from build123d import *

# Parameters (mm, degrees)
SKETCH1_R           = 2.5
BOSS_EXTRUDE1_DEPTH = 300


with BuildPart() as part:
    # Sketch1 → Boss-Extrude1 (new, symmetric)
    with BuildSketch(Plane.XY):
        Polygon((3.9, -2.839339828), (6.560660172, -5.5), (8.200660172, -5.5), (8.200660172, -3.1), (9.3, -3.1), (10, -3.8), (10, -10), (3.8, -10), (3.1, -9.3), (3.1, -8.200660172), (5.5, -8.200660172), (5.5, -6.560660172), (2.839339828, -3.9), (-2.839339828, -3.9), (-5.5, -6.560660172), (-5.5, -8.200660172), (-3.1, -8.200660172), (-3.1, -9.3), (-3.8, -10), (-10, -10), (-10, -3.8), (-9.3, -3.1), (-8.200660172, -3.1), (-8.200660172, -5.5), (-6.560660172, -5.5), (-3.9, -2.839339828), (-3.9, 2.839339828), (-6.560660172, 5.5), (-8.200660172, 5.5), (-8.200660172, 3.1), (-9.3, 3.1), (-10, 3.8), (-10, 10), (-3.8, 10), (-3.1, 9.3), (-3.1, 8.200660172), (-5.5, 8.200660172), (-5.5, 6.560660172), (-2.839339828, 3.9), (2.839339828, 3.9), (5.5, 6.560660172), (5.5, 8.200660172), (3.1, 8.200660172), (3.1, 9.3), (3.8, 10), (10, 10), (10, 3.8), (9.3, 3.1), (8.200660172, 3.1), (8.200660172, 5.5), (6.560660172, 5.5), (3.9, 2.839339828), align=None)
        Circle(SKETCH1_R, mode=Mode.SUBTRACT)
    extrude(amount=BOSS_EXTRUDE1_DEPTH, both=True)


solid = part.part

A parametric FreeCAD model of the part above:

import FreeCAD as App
import Part
import Sketcher
from FreeCAD import Vector

doc = App.newDocument("Part")
body = doc.addObject("PartDesign::Body", "Body")

# Sketch on XY plane
sketch1 = body.newObject("Sketcher::SketchObject", "Sketch")
sketch1.AttachmentSupport = (doc.getObject("XY_Plane"), [""])
sketch1.MapMode = "FlatFace"
sketch1.addGeometry(Part.LineSegment(Vector(6.6, -5.5, 0), Vector(3.9, -2.8, 0)), False)
sketch1.addGeometry(Part.LineSegment(Vector(3.9, -2.8, 0), Vector(3.9, 2.8, 0)), False)
sketch1.addGeometry(Part.LineSegment(Vector(3.9, 2.8, 0), Vector(6.6, 5.5, 0)), False)
sketch1.addGeometry(Part.LineSegment(Vector(6.6, 5.5, 0), Vector(8.2, 5.5, 0)), False)
sketch1.addGeometry(Part.LineSegment(Vector(8.2, 5.5, 0), Vector(8.2, 3.1, 0)), False)
sketch1.addGeometry(Part.LineSegment(Vector(8.2, 3.1, 0), Vector(9.3, 3.1, 0)), False)
sketch1.addGeometry(Part.LineSegment(Vector(9.3, 3.1, 0), Vector(10, 3.8, 0)), False)
sketch1.addGeometry(Part.LineSegment(Vector(10, 3.8, 0), Vector(10, 10, 0)), False)
sketch1.addGeometry(Part.LineSegment(Vector(10, 10, 0), Vector(3.8, 10, 0)), False)
sketch1.addGeometry(Part.LineSegment(Vector(3.8, 10, 0), Vector(3.1, 9.3, 0)), False)
sketch1.addGeometry(Part.LineSegment(Vector(3.1, 9.3, 0), Vector(3.1, 8.2, 0)), False)
sketch1.addGeometry(Part.LineSegment(Vector(3.1, 8.2, 0), Vector(5.5, 8.2, 0)), False)
sketch1.addGeometry(Part.LineSegment(Vector(5.5, 8.2, 0), Vector(5.5, 6.6, 0)), False)
sketch1.addGeometry(Part.LineSegment(Vector(5.5, 6.6, 0), Vector(2.8, 3.9, 0)), False)
sketch1.addGeometry(Part.LineSegment(Vector(2.8, 3.9, 0), Vector(-2.8, 3.9, 0)), False)
sketch1.addGeometry(Part.LineSegment(Vector(-2.8, 3.9, 0), Vector(-5.5, 6.6, 0)), False)
sketch1.addGeometry(Part.LineSegment(Vector(-5.5, 6.6, 0), Vector(-5.5, 8.2, 0)), False)
sketch1.addGeometry(Part.LineSegment(Vector(-5.5, 8.2, 0), Vector(-3.1, 8.2, 0)), False)
sketch1.addGeometry(Part.LineSegment(Vector(-3.1, 8.2, 0), Vector(-3.1, 9.3, 0)), False)
sketch1.addGeometry(Part.LineSegment(Vector(-3.1, 9.3, 0), Vector(-3.8, 10, 0)), False)
sketch1.addGeometry(Part.LineSegment(Vector(-3.8, 10, 0), Vector(-10, 10, 0)), False)
sketch1.addGeometry(Part.LineSegment(Vector(-10, 10, 0), Vector(-10, 3.8, 0)), False)
sketch1.addGeometry(Part.LineSegment(Vector(-10, 3.8, 0), Vector(-9.3, 3.1, 0)), False)
sketch1.addGeometry(Part.LineSegment(Vector(-9.3, 3.1, 0), Vector(-8.2, 3.1, 0)), False)
sketch1.addGeometry(Part.LineSegment(Vector(-8.2, 3.1, 0), Vector(-8.2, 5.5, 0)), False)
sketch1.addGeometry(Part.LineSegment(Vector(-8.2, 5.5, 0), Vector(-6.6, 5.5, 0)), False)
sketch1.addGeometry(Part.LineSegment(Vector(-6.6, 5.5, 0), Vector(-3.9, 2.8, 0)), False)
sketch1.addGeometry(Part.LineSegment(Vector(-3.9, 2.8, 0), Vector(-3.9, -2.8, 0)), False)
sketch1.addGeometry(Part.LineSegment(Vector(-3.9, -2.8, 0), Vector(-6.6, -5.5, 0)), False)
sketch1.addGeometry(Part.LineSegment(Vector(-6.6, -5.5, 0), Vector(-8.2, -5.5, 0)), False)
sketch1.addGeometry(Part.LineSegment(Vector(-8.2, -5.5, 0), Vector(-8.2, -3.1, 0)), False)
sketch1.addGeometry(Part.LineSegment(Vector(-8.2, -3.1, 0), Vector(-9.3, -3.1, 0)), False)
sketch1.addGeometry(Part.LineSegment(Vector(-9.3, -3.1, 0), Vector(-10, -3.8, 0)), False)
sketch1.addGeometry(Part.LineSegment(Vector(-10, -3.8, 0), Vector(-10, -10, 0)), False)
sketch1.addGeometry(Part.LineSegment(Vector(-10, -10, 0), Vector(-3.8, -10, 0)), False)
sketch1.addGeometry(Part.LineSegment(Vector(-3.8, -10, 0), Vector(-3.1, -9.3, 0)), False)
sketch1.addGeometry(Part.LineSegment(Vector(-3.1, -9.3, 0), Vector(-3.1, -8.2, 0)), False)
sketch1.addGeometry(Part.LineSegment(Vector(-3.1, -8.2, 0), Vector(-5.5, -8.2, 0)), False)
sketch1.addGeometry(Part.LineSegment(Vector(-5.5, -8.2, 0), Vector(-5.5, -6.6, 0)), False)
sketch1.addGeometry(Part.LineSegment(Vector(-5.5, -6.6, 0), Vector(-2.8, -3.9, 0)), False)
sketch1.addGeometry(Part.LineSegment(Vector(-2.8, -3.9, 0), Vector(2.8, -3.9, 0)), False)
sketch1.addGeometry(Part.LineSegment(Vector(2.8, -3.9, 0), Vector(5.5, -6.6, 0)), False)
sketch1.addGeometry(Part.LineSegment(Vector(5.5, -6.6, 0), Vector(5.5, -8.2, 0)), False)
sketch1.addGeometry(Part.LineSegment(Vector(5.5, -8.2, 0), Vector(3.1, -8.2, 0)), False)
sketch1.addGeometry(Part.LineSegment(Vector(3.1, -8.2, 0), Vector(3.1, -9.3, 0)), False)
sketch1.addGeometry(Part.LineSegment(Vector(3.1, -9.3, 0), Vector(3.8, -10, 0)), False)
sketch1.addGeometry(Part.LineSegment(Vector(3.8, -10, 0), Vector(10, -10, 0)), False)
sketch1.addGeometry(Part.LineSegment(Vector(10, -10, 0), Vector(10, -3.8, 0)), False)
sketch1.addGeometry(Part.LineSegment(Vector(10, -3.8, 0), Vector(9.3, -3.1, 0)), False)
sketch1.addGeometry(Part.LineSegment(Vector(9.3, -3.1, 0), Vector(8.2, -3.1, 0)), False)
sketch1.addGeometry(Part.LineSegment(Vector(8.2, -3.1, 0), Vector(8.2, -5.5, 0)), False)
sketch1.addGeometry(Part.LineSegment(Vector(8.2, -5.5, 0), Vector(6.6, -5.5, 0)), False)
sketch1.addGeometry(Part.Circle(Vector(0, 0, 0), Vector(0, 0, 1), 2.5), False)
sketch1.addConstraint(Sketcher.Constraint("Coincident", 0, 2, 1, 1))
sketch1.addConstraint(Sketcher.Constraint("Coincident", 1, 2, 2, 1))
sketch1.addConstraint(Sketcher.Constraint("Coincident", 2, 2, 3, 1))
sketch1.addConstraint(Sketcher.Constraint("Coincident", 3, 2, 4, 1))
sketch1.addConstraint(Sketcher.Constraint("Coincident", 4, 2, 5, 1))
sketch1.addConstraint(Sketcher.Constraint("Coincident", 5, 2, 6, 1))
sketch1.addConstraint(Sketcher.Constraint("Coincident", 6, 2, 7, 1))
sketch1.addConstraint(Sketcher.Constraint("Coincident", 7, 2, 8, 1))
sketch1.addConstraint(Sketcher.Constraint("Coincident", 8, 2, 9, 1))
sketch1.addConstraint(Sketcher.Constraint("Coincident", 9, 2, 10, 1))
sketch1.addConstraint(Sketcher.Constraint("Coincident", 10, 2, 11, 1))
sketch1.addConstraint(Sketcher.Constraint("Coincident", 11, 2, 12, 1))
sketch1.addConstraint(Sketcher.Constraint("Coincident", 12, 2, 13, 1))
sketch1.addConstraint(Sketcher.Constraint("Coincident", 13, 2, 14, 1))
sketch1.addConstraint(Sketcher.Constraint("Coincident", 14, 2, 15, 1))
sketch1.addConstraint(Sketcher.Constraint("Coincident", 15, 2, 16, 1))
sketch1.addConstraint(Sketcher.Constraint("Coincident", 16, 2, 17, 1))
sketch1.addConstraint(Sketcher.Constraint("Coincident", 17, 2, 18, 1))
sketch1.addConstraint(Sketcher.Constraint("Coincident", 18, 2, 19, 1))
sketch1.addConstraint(Sketcher.Constraint("Coincident", 19, 2, 20, 1))
sketch1.addConstraint(Sketcher.Constraint("Coincident", 20, 2, 21, 1))
sketch1.addConstraint(Sketcher.Constraint("Coincident", 21, 2, 22, 1))
sketch1.addConstraint(Sketcher.Constraint("Coincident", 22, 2, 23, 1))
sketch1.addConstraint(Sketcher.Constraint("Coincident", 23, 2, 24, 1))
sketch1.addConstraint(Sketcher.Constraint("Coincident", 24, 2, 25, 1))
sketch1.addConstraint(Sketcher.Constraint("Coincident", 25, 2, 26, 1))
sketch1.addConstraint(Sketcher.Constraint("Coincident", 26, 2, 27, 1))
sketch1.addConstraint(Sketcher.Constraint("Coincident", 27, 2, 28, 1))
sketch1.addConstraint(Sketcher.Constraint("Coincident", 28, 2, 29, 1))
sketch1.addConstraint(Sketcher.Constraint("Coincident", 29, 2, 30, 1))
sketch1.addConstraint(Sketcher.Constraint("Coincident", 30, 2, 31, 1))
sketch1.addConstraint(Sketcher.Constraint("Coincident", 31, 2, 32, 1))
sketch1.addConstraint(Sketcher.Constraint("Coincident", 32, 2, 33, 1))
sketch1.addConstraint(Sketcher.Constraint("Coincident", 33, 2, 34, 1))
sketch1.addConstraint(Sketcher.Constraint("Coincident", 34, 2, 35, 1))
sketch1.addConstraint(Sketcher.Constraint("Coincident", 35, 2, 36, 1))
sketch1.addConstraint(Sketcher.Constraint("Coincident", 36, 2, 37, 1))
sketch1.addConstraint(Sketcher.Constraint("Coincident", 37, 2, 38, 1))
sketch1.addConstraint(Sketcher.Constraint("Coincident", 38, 2, 39, 1))
sketch1.addConstraint(Sketcher.Constraint("Coincident", 39, 2, 40, 1))
sketch1.addConstraint(Sketcher.Constraint("Coincident", 40, 2, 41, 1))
sketch1.addConstraint(Sketcher.Constraint("Coincident", 41, 2, 42, 1))
sketch1.addConstraint(Sketcher.Constraint("Coincident", 42, 2, 43, 1))
sketch1.addConstraint(Sketcher.Constraint("Coincident", 43, 2, 44, 1))
sketch1.addConstraint(Sketcher.Constraint("Coincident", 44, 2, 45, 1))
sketch1.addConstraint(Sketcher.Constraint("Coincident", 45, 2, 46, 1))
sketch1.addConstraint(Sketcher.Constraint("Coincident", 46, 2, 47, 1))
sketch1.addConstraint(Sketcher.Constraint("Coincident", 47, 2, 48, 1))
sketch1.addConstraint(Sketcher.Constraint("Coincident", 48, 2, 49, 1))
sketch1.addConstraint(Sketcher.Constraint("Coincident", 49, 2, 50, 1))
sketch1.addConstraint(Sketcher.Constraint("Coincident", 50, 2, 51, 1))
sketch1.addConstraint(Sketcher.Constraint("Coincident", 51, 2, 0, 1))
sketch1.addConstraint(Sketcher.Constraint("Vertical", 1))
sketch1.addConstraint(Sketcher.Constraint("Horizontal", 3))
sketch1.addConstraint(Sketcher.Constraint("Vertical", 4))
sketch1.addConstraint(Sketcher.Constraint("Horizontal", 5))
sketch1.addConstraint(Sketcher.Constraint("Vertical", 7))
sketch1.addConstraint(Sketcher.Constraint("Horizontal", 8))
sketch1.addConstraint(Sketcher.Constraint("Vertical", 10))
sketch1.addConstraint(Sketcher.Constraint("Horizontal", 11))
sketch1.addConstraint(Sketcher.Constraint("Vertical", 12))
sketch1.addConstraint(Sketcher.Constraint("Horizontal", 14))
sketch1.addConstraint(Sketcher.Constraint("Vertical", 16))
sketch1.addConstraint(Sketcher.Constraint("Horizontal", 17))
sketch1.addConstraint(Sketcher.Constraint("Vertical", 18))
sketch1.addConstraint(Sketcher.Constraint("Horizontal", 20))
sketch1.addConstraint(Sketcher.Constraint("Vertical", 21))
sketch1.addConstraint(Sketcher.Constraint("Horizontal", 23))
sketch1.addConstraint(Sketcher.Constraint("Vertical", 24))
sketch1.addConstraint(Sketcher.Constraint("Horizontal", 25))
sketch1.addConstraint(Sketcher.Constraint("Vertical", 27))
sketch1.addConstraint(Sketcher.Constraint("Horizontal", 29))
sketch1.addConstraint(Sketcher.Constraint("Vertical", 30))
sketch1.addConstraint(Sketcher.Constraint("Horizontal", 31))
sketch1.addConstraint(Sketcher.Constraint("Vertical", 33))
sketch1.addConstraint(Sketcher.Constraint("Horizontal", 34))
sketch1.addConstraint(Sketcher.Constraint("Vertical", 36))
sketch1.addConstraint(Sketcher.Constraint("Horizontal", 37))
sketch1.addConstraint(Sketcher.Constraint("Vertical", 38))
sketch1.addConstraint(Sketcher.Constraint("Horizontal", 40))
sketch1.addConstraint(Sketcher.Constraint("Vertical", 42))
sketch1.addConstraint(Sketcher.Constraint("Horizontal", 43))
sketch1.addConstraint(Sketcher.Constraint("Vertical", 44))
sketch1.addConstraint(Sketcher.Constraint("Horizontal", 46))
sketch1.addConstraint(Sketcher.Constraint("Vertical", 47))
sketch1.addConstraint(Sketcher.Constraint("Horizontal", 49))
sketch1.addConstraint(Sketcher.Constraint("Vertical", 50))
sketch1.addConstraint(Sketcher.Constraint("Horizontal", 51))
sketch1.addConstraint(Sketcher.Constraint("Coincident", 52, 3, -1, 1))
sketch1.addConstraint(Sketcher.Constraint("Symmetric", 0, 2, 26, 2, -1, 1))
sketch1.addConstraint(Sketcher.Constraint("Symmetric", 2, 2, 28, 2, -1, 1))
sketch1.addConstraint(Sketcher.Constraint("Symmetric", 4, 2, 30, 2, -1, 1))
sketch1.addConstraint(Sketcher.Constraint("Symmetric", 6, 2, 32, 2, -1, 1))
sketch1.addConstraint(Sketcher.Constraint("Symmetric", 8, 2, 34, 2, -1, 1))
sketch1.addConstraint(Sketcher.Constraint("Symmetric", 9, 2, 35, 2, -1, 1))
sketch1.addConstraint(Sketcher.Constraint("Symmetric", 11, 2, 37, 2, -1, 1))
sketch1.addConstraint(Sketcher.Constraint("Symmetric", 13, 2, 39, 2, -1, 1))
sketch1.addConstraint(Sketcher.Constraint("Symmetric", 15, 2, 41, 2, -1, 1))
sketch1.addConstraint(Sketcher.Constraint("Symmetric", 17, 2, 43, 2, -1, 1))
sketch1.addConstraint(Sketcher.Constraint("Symmetric", 19, 2, 45, 2, -1, 1))
sketch1.addConstraint(Sketcher.Constraint("Symmetric", 21, 2, 47, 2, -1, 1))
sketch1.addConstraint(Sketcher.Constraint("Symmetric", 22, 2, 48, 2, -1, 1))
sketch1.addConstraint(Sketcher.Constraint("Symmetric", 24, 2, 50, 2, -1, 1))
sketch1.addConstraint(Sketcher.Constraint("Symmetric", 12, 2, 15, 2, -2))
sketch1.addConstraint(Sketcher.Constraint("Symmetric", 10, 2, 17, 2, -2))
sketch1.addConstraint(Sketcher.Constraint("Symmetric", 8, 2, 19, 2, -2))
sketch1.addConstraint(Sketcher.Constraint("Symmetric", 6, 2, 21, 2, -2))
sketch1.addConstraint(Sketcher.Constraint("Symmetric", 5, 2, 22, 2, -2))
sketch1.addConstraint(Sketcher.Constraint("Symmetric", 3, 2, 24, 2, -2))
sketch1.addConstraint(Sketcher.Constraint("Perpendicular", 0, 2))
sketch1.addConstraint(Sketcher.Constraint("Parallel", 2, 6))
sketch1.addConstraint(Sketcher.Constraint("Parallel", 6, 9))
sketch1.addConstraint(Sketcher.Constraint("Parallel", 9, 13))
sketch1.addConstraint(Sketcher.Constraint("Perpendicular", 13, 15))
sketch1.addConstraint(Sketcher.Constraint("Parallel", 15, 19))
sketch1.addConstraint(Sketcher.Constraint("Parallel", 19, 22))
sketch1.addConstraint(Sketcher.Constraint("Parallel", 22, 26))
sketch1.addConstraint(Sketcher.Constraint("Perpendicular", 26, 28))
sketch1.addConstraint(Sketcher.Constraint("Parallel", 28, 32))
sketch1.addConstraint(Sketcher.Constraint("Parallel", 35, 39))
sketch1.addConstraint(Sketcher.Constraint("Perpendicular", 39, 41))
sketch1.addConstraint(Sketcher.Constraint("Parallel", 41, 45))
sketch1.addConstraint(Sketcher.Constraint("Horizontal", 1, 2, 26, 2))
sketch1.addConstraint(Sketcher.Constraint("Equal", 40, 1))
sketch1.addConstraint(Sketcher.Constraint("Equal", 43, 4))
sketch1.addConstraint(Sketcher.Constraint("Equal", 46, 7))
sketch1.addConstraint(Sketcher.Constraint("Equal", 49, 10))
sketch1.addConstraint(Sketcher.Constraint("Equal", 51, 12))
sketch1.addConstraint(Sketcher.Constraint("Equal", 6, 9))
sketch1.addConstraint(Sketcher.Constraint("Equal", 2, 13))
sketch1.addConstraint(Sketcher.Constraint("Diameter", 52, 5.0))
sketch1.addConstraint(Sketcher.Constraint("DistanceX", 8, 2, 8, 1, 6.2))
sketch1.addConstraint(Sketcher.Constraint("DistanceX", 11, 1, 11, 2, 2.4))
sketch1.addConstraint(Sketcher.Constraint("DistanceX", -1, 1, 6, 2, 10.0))
sketch1.addConstraint(Sketcher.Constraint("DistanceX", 3, 1, 3, 2, 1.64))
sketch1.addConstraint(Sketcher.Constraint("DistanceX", -1, 1, 0, 2, 3.9))
sketch1.addConstraint(Sketcher.Constraint("DistanceY", -1, 1, 2, 2, 5.5))
sketch1.addConstraint(Sketcher.Constraint("DistanceX", 5, 1, 5, 2, 1.09934))
pad1 = body.newObject("PartDesign::Pad", "Pad")
pad1.Profile = sketch1
pad1.Length = 600
pad1.Midplane = True

doc.recompute()
